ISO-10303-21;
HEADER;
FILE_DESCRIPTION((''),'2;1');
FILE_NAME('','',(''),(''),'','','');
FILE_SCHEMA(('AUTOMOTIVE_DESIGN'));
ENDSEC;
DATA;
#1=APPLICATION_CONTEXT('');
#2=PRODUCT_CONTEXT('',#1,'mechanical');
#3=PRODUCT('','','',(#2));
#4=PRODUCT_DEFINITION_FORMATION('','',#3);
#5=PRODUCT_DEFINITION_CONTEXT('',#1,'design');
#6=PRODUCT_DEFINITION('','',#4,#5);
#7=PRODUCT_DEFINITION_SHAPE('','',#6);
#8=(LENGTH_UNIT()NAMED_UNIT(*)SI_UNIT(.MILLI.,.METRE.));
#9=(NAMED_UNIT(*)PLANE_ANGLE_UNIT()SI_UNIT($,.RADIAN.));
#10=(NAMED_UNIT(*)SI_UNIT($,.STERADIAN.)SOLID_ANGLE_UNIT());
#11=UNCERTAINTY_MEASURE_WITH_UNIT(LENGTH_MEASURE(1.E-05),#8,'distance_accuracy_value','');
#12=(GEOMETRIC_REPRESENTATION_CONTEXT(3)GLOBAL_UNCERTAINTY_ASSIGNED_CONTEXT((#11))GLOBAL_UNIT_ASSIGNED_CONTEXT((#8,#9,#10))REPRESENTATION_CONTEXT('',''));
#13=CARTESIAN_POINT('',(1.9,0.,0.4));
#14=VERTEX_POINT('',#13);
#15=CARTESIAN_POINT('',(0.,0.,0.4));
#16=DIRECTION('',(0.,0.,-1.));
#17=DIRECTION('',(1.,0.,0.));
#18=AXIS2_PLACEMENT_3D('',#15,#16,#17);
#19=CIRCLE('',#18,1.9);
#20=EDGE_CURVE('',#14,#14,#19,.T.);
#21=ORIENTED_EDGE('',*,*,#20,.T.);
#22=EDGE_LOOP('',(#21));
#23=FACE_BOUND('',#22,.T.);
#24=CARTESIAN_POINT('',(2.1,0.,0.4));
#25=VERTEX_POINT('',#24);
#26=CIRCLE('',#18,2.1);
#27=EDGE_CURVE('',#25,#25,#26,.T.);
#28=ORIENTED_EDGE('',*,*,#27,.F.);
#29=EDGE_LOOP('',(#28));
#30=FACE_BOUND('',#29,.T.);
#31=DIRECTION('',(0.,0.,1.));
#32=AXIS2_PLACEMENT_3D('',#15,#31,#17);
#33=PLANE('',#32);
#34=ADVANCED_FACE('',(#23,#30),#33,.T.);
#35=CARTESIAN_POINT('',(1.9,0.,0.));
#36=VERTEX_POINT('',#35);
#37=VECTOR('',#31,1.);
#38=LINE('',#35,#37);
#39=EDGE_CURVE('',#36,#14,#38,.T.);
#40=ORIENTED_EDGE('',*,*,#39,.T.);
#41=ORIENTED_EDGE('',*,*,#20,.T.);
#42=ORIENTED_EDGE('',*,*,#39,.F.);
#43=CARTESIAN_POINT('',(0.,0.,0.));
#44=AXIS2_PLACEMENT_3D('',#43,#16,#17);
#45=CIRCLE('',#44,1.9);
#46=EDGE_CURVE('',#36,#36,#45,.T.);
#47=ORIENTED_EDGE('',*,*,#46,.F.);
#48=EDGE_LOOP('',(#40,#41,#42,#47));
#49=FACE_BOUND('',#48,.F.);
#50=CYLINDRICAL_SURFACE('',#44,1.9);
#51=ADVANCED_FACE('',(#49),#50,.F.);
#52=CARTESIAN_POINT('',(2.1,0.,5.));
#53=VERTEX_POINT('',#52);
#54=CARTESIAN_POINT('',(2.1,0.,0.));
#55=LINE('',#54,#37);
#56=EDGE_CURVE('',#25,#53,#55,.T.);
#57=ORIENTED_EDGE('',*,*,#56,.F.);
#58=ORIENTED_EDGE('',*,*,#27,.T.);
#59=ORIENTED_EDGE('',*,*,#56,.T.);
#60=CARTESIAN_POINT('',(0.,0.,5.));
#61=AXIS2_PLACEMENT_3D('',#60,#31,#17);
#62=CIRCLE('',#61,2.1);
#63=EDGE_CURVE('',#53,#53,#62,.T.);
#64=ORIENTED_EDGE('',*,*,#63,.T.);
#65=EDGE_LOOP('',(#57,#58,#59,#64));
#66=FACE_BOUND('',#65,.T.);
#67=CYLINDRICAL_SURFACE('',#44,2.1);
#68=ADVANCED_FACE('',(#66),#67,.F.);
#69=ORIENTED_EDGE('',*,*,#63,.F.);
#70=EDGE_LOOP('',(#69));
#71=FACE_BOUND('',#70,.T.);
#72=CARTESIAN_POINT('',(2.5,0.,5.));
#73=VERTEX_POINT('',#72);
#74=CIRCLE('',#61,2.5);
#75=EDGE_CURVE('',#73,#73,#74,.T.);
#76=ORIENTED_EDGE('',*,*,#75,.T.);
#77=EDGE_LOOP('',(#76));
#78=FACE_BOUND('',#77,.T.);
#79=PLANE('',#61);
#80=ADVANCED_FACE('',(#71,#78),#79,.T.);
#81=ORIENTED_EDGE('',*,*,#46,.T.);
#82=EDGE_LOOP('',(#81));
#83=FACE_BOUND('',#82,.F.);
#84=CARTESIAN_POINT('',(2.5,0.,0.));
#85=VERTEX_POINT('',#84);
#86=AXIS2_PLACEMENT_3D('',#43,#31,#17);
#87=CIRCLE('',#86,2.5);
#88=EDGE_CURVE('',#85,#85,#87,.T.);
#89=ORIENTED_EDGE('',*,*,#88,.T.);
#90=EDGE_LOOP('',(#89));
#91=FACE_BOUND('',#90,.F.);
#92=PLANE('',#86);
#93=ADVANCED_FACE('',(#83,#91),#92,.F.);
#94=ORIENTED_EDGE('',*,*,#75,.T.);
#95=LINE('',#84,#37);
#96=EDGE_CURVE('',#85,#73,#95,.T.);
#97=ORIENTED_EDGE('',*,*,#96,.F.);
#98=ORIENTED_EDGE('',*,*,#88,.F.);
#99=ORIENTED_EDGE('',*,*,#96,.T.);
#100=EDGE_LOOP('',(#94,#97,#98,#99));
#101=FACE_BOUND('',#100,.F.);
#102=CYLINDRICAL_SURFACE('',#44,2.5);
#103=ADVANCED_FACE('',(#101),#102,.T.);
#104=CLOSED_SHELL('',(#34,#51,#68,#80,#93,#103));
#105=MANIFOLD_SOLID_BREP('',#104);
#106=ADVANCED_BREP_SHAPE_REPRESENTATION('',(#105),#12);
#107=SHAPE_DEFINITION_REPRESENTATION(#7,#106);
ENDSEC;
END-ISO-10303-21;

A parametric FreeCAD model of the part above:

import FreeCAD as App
import Part
import Sketcher
from FreeCAD import Vector


def faces_at(feature, points):
    """Names of the faces that lie closest to the given points."""
    faces = feature.Shape.Faces
    near = lambda p: min(range(len(faces)), key=lambda i: faces[i].distToShape(Part.Vertex(*p))[0])
    return sorted({f"Face{near(p) + 1}" for p in points})

doc = App.newDocument("Part")
body = doc.addObject("PartDesign::Body", "Body")

# Sketch on XY plane
sketch1 = doc.addObject("Sketcher::SketchObject", "Sketch")
body.addObject(sketch1)
sketch1.AttachmentSupport = (doc.XY_Plane, [""])
sketch1.MapMode = "FlatFace"
sketch1.addGeometry(Part.Circle(Vector(0, 0, 0), Vector(0, 0, 1), 2.5), False)
sketch1.addConstraint([
    Sketcher.Constraint("Coincident", 0, 3, -1, 1),
    Sketcher.Constraint("Diameter", 0, 5.0),
])
pad1 = doc.addObject("PartDesign::Pad", "Pad")
body.addObject(pad1)
pad1.Profile = sketch1
pad1.Length = 5
doc.recompute()

thickness = doc.addObject("PartDesign::Thickness", "Thickness")
body.addObject(thickness)
thickness.Base = (pad1, faces_at(pad1, [(0, 0, 5)]))
thickness.Value = 0.4
thickness.Reversed = True
thickness.Join = "Arc"

# Sketch on XY plane
sketch2 = doc.addObject("Sketcher::SketchObject", "Sketch001")
body.addObject(sketch2)
sketch2.AttachmentSupport = (doc.XY_Plane, [""])
sketch2.MapMode = "FlatFace"
sketch2.addGeometry(Part.Circle(Vector(0, 0, 0), Vector(0, 0, 1), 1.9), False)
sketch2.addConstraint([
    Sketcher.Constraint("Coincident", 0, 3, -1, 1),
    Sketcher.Constraint("Diameter", 0, 3.8),
])
pocket1 = doc.addObject("PartDesign::Pocket", "Pocket")
body.addObject(pocket1)
pocket1.Profile = sketch2
pocket1.Length = 25
pocket1.Reversed = True

doc.recompute()
